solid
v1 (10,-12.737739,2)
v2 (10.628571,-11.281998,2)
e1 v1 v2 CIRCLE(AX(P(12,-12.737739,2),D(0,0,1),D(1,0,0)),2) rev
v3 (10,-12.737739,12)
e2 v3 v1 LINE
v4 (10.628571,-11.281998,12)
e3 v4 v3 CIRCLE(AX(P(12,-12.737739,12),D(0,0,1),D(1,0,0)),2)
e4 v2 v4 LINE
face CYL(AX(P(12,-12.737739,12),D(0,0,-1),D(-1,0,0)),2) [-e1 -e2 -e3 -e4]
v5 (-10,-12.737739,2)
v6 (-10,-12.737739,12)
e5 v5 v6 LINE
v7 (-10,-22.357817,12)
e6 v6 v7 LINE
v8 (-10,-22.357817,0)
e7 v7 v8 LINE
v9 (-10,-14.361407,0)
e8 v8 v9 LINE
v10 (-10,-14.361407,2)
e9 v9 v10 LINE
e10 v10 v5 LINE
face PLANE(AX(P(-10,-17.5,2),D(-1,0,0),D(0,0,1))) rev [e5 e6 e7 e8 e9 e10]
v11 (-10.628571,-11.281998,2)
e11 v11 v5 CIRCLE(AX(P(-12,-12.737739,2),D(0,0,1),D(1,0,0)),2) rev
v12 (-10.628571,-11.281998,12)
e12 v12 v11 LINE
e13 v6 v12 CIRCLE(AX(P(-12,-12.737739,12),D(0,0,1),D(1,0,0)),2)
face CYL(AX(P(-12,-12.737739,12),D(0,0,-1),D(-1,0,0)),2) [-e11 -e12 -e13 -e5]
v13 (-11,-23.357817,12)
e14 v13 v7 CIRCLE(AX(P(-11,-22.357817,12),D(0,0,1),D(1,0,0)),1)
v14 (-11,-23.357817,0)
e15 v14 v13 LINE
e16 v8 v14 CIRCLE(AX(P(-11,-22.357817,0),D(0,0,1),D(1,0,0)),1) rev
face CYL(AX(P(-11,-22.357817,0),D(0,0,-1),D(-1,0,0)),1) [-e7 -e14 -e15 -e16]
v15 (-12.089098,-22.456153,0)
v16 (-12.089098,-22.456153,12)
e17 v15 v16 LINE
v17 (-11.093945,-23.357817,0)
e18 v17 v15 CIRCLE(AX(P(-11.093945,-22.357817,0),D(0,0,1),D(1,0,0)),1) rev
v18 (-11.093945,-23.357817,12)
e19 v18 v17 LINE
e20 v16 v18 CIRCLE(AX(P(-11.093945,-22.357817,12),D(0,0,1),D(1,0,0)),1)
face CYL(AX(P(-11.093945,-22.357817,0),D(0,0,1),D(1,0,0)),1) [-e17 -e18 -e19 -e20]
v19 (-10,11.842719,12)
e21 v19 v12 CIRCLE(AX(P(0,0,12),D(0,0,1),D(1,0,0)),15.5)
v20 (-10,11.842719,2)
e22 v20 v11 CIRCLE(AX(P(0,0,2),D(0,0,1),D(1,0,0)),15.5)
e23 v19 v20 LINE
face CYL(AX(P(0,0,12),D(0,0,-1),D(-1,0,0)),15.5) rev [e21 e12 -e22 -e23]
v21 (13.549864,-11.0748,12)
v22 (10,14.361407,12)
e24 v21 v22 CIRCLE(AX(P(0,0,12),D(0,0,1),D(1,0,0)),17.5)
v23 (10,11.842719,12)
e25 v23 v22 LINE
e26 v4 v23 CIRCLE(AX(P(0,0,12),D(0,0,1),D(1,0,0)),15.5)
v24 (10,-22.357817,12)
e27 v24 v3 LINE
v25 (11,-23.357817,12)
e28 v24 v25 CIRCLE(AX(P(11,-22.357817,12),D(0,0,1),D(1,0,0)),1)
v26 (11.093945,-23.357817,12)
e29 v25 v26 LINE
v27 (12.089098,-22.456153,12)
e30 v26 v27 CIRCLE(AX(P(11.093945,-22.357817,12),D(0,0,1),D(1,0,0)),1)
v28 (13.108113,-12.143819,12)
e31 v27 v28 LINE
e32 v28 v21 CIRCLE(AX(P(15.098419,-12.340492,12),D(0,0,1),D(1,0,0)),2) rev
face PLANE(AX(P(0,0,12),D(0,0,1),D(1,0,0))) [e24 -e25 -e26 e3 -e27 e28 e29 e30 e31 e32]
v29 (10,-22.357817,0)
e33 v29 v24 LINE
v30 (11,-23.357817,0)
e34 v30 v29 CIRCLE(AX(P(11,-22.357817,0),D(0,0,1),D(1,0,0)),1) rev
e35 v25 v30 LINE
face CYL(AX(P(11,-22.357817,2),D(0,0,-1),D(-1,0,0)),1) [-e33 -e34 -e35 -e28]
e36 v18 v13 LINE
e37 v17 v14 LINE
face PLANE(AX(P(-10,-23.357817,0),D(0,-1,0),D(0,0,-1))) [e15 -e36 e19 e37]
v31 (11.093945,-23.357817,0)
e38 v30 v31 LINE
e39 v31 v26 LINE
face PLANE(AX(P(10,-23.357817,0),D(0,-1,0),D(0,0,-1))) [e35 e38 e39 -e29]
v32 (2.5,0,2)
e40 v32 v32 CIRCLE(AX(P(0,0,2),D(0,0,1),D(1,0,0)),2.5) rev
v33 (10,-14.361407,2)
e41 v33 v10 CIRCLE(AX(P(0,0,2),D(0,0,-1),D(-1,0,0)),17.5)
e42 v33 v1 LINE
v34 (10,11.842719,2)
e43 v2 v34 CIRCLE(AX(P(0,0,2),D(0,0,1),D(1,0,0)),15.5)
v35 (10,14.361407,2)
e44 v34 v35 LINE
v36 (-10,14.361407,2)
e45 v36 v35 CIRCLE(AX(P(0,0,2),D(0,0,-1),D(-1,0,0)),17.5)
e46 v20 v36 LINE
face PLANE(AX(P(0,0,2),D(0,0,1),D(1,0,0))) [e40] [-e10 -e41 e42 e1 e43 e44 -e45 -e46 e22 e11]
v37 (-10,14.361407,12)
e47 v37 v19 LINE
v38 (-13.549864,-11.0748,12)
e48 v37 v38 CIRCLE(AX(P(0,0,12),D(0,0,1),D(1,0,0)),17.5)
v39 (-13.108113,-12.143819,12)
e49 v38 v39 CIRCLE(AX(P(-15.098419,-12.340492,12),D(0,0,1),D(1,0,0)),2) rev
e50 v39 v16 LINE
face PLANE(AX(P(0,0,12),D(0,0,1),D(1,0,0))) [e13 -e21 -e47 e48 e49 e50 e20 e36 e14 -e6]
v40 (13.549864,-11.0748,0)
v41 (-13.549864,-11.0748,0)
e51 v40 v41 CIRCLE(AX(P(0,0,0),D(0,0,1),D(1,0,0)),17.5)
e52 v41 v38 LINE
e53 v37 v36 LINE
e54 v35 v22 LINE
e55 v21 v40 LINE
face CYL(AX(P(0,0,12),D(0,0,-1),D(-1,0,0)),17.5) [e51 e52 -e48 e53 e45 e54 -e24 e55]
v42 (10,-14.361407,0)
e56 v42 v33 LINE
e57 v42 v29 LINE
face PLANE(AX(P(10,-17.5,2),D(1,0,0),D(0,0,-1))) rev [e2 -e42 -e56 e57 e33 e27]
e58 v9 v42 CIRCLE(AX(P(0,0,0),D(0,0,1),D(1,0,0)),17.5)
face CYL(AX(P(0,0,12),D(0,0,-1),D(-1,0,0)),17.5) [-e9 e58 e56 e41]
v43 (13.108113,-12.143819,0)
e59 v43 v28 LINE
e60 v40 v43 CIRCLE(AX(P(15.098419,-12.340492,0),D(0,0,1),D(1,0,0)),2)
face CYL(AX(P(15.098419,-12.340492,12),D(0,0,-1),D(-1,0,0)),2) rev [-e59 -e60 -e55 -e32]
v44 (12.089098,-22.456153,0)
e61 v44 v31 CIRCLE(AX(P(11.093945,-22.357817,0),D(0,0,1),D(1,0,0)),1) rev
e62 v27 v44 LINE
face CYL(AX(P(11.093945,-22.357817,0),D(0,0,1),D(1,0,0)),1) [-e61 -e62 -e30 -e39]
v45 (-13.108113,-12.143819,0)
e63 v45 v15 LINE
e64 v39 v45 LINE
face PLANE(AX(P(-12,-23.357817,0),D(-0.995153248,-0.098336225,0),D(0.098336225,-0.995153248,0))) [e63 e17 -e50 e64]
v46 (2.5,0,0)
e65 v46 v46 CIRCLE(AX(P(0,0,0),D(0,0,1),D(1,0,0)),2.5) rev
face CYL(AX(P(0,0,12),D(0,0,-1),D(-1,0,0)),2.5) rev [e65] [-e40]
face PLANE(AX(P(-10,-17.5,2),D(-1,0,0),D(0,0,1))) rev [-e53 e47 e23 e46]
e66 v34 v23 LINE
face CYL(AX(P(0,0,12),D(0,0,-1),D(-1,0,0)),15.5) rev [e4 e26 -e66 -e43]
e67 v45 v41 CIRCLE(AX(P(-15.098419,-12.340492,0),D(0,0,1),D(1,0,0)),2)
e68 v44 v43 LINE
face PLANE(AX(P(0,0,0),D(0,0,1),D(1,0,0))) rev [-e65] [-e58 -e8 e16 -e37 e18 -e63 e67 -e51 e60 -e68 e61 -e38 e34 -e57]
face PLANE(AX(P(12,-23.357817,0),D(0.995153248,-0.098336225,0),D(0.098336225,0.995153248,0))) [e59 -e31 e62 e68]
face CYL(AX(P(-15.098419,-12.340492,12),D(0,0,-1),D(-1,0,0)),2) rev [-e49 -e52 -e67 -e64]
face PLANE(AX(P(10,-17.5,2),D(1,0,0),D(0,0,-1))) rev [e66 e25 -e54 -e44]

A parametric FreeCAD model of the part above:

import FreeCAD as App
import Part
import Sketcher
from FreeCAD import Vector
Q = App.Units.Quantity


def edges_at(feature, points):
    """Names of the edges that pass closest to the given points."""
    edges = feature.Shape.Edges
    near = lambda p: min(range(len(edges)), key=lambda i: edges[i].distToShape(Part.Vertex(*p))[0])
    return sorted({f"Edge{near(p) + 1}" for p in points})


def faces_at(feature, points):
    """Names of the faces that lie closest to the given points."""
    faces = feature.Shape.Faces
    near = lambda p: min(range(len(faces)), key=lambda i: faces[i].distToShape(Part.Vertex(*p))[0])
    return sorted({f"Face{near(p) + 1}" for p in points})


def add_polygon(sketch, points):
    """Adds a closed chain of lines whose ends are joined by coincident constraints."""
    first, n = sketch.GeometryCount, len(points)
    for a, b in zip(points, points[1:] + points[:1]):
        sketch.addGeometry(Part.LineSegment(App.Vector(*a, 0), App.Vector(*b, 0)), False)
    for i in range(n):
        sketch.addConstraint(Sketcher.Constraint("Coincident", first + i, 2, first + (i + 1) % n, 1))

doc = App.newDocument("Part")
body = doc.addObject("PartDesign::Body", "Body")

# Sketch on XY plane
sketch1 = body.newObject("Sketcher::SketchObject", "Sketch")
sketch1.AttachmentSupport = (doc.getObject("XY_Plane"), [""])
sketch1.MapMode = "FlatFace"
sketch1.addGeometry(Part.Circle(Vector(0, 0, 0), Vector(0, 0, 1), 18), False)
sketch1.addConstraint([
    Sketcher.Constraint("Coincident", 0, 3, -1, 1),
    Sketcher.Constraint("Diameter", 0, 35.0),
])
pad1 = body.newObject("PartDesign::Pad", "Pad")
pad1.Profile = sketch1
pad1.Length = 12
doc.recompute()

thickness = body.newObject("PartDesign::Thickness", "Thickness")
thickness.Base = (pad1, faces_at(pad1, [(0, 0, 12)]))
thickness.Value = 2
thickness.Reversed = True
thickness.Join = "Intersection"

# Sketch on XY plane
sketch2 = body.newObject("Sketcher::SketchObject", "Sketch001")
sketch2.AttachmentSupport = (doc.getObject("XY_Plane"), [""])
sketch2.MapMode = "FlatFace"
sketch2.addGeometry(Part.Circle(Vector(0, 0, 0), Vector(0, 0, 1), 2.5), False)
sketch2.addConstraint([
    Sketcher.Constraint("Coincident", 0, 3, -1, 1),
    Sketcher.Constraint("Diameter", 0, 5.0),
])
pocket1 = body.newObject("PartDesign::Pocket", "Pocket")
pocket1.Profile = sketch2
pocket1.Type = "ThroughAll"
pocket1.Midplane = True

# Sketch on XZ plane
sketch3 = body.newObject("Sketcher::SketchObject", "Sketch002")
sketch3.AttachmentSupport = (doc.getObject("XZ_Plane"), [""])
sketch3.MapMode = "FlatFace"
add_polygon(sketch3, [(-10, 2), (-10, 27), (10, 27), (10, 2)])  # lines 0-3
sketch3.addConstraint([
    Sketcher.Constraint("Vertical", 0),
    Sketcher.Constraint("Horizontal", 1),
    Sketcher.Constraint("Vertical", 2),
    Sketcher.Constraint("Horizontal", 3),
    Sketcher.Constraint("DistanceX", 1, 1, 1, 2, 20.0),
    Sketcher.Constraint("DistanceX", 0, 2, -1, 1, 10.0),
    Sketcher.Constraint("DistanceY", -1, 1, 2, 2, 2.0),
    Sketcher.Constraint("DistanceY", 0, 1, 0, 2, 24.94067),
])
pocket2 = body.newObject("PartDesign::Pocket", "Pocket001")
pocket2.Profile = sketch3
pocket2.Type = "ThroughAll"
pocket2.Midplane = True

# Sketch on XY plane
sketch4 = body.newObject("Sketcher::SketchObject", "Sketch003")
sketch4.AttachmentSupport = (doc.getObject("XY_Plane"), [""])
sketch4.MapMode = "FlatFace"
sketch4.AttachmentOffset = App.Placement(Vector(0, 0, 12), App.Rotation())
add_polygon(sketch4, [(-10, -23.4), (-10, -14.4), (-13.2, -11.5), (-12, -23.4)])  # lines 0-3
add_polygon(sketch4, [(10, -14.4), (10, -23.4), (12, -23.4), (13.2, -11.5)])  # lines 4-7
sketch4.addConstraint([
    Sketcher.Constraint("Vertical", 0),
    Sketcher.Constraint("Horizontal", 3),
    Sketcher.Constraint("Vertical", 4),
    Sketcher.Constraint("Horizontal", 5),
    Sketcher.Constraint("Symmetric", 3, 2, 4, 2, -2),
    Sketcher.Constraint("Symmetric", 1, 2, 6, 2, -2),
    Sketcher.Constraint("Horizontal", 0, 2, 7, 2),
    Sketcher.Constraint("Equal", 3, 5),
    Sketcher.Constraint("DistanceX", 3, 1, 3, 2, 2.0),
    Sketcher.Constraint("DistanceX", 0, 2, -1, 1, 10.0),
    Sketcher.Constraint("Angle", 1, Q("138.170014 deg")),
    Sketcher.Constraint("DistanceY", 0, 1, 0, 2, 8.99641),
    Sketcher.Constraint("Distance", 1, 4.25335),
    Sketcher.Constraint("DistanceY", 1, 2, -1, 1, 11.524752),
])
pad2 = body.newObject("PartDesign::Pad", "Pad001")
pad2.Profile = sketch4
pad2.Length = 12
pad2.Reversed = True
doc.recompute()

fillet = body.newObject("PartDesign::Fillet", "Fillet")
fillet.Base = (pad2, edges_at(pad2, [(-10, -11.843, 7), (10, -11.843, 7)]))
fillet.Radius = 2
doc.recompute()

fillet2 = body.newObject("PartDesign::Fillet", "Fillet001")
fillet2.Base = (fillet, edges_at(fillet, [(-13.169, -11.525, 6), (13.169, -11.525, 6)]))
fillet2.Radius = 2
doc.recompute()

fillet3 = body.newObject("PartDesign::Fillet", "Fillet002")
fillet3.Base = (fillet2, edges_at(fillet2, [
    (-10, -23.358, 6),
    (-12, -23.358, 6),
    (12, -23.358, 6),
    (10, -23.358, 6),
]))
fillet3.Radius = 1

doc.recompute()
